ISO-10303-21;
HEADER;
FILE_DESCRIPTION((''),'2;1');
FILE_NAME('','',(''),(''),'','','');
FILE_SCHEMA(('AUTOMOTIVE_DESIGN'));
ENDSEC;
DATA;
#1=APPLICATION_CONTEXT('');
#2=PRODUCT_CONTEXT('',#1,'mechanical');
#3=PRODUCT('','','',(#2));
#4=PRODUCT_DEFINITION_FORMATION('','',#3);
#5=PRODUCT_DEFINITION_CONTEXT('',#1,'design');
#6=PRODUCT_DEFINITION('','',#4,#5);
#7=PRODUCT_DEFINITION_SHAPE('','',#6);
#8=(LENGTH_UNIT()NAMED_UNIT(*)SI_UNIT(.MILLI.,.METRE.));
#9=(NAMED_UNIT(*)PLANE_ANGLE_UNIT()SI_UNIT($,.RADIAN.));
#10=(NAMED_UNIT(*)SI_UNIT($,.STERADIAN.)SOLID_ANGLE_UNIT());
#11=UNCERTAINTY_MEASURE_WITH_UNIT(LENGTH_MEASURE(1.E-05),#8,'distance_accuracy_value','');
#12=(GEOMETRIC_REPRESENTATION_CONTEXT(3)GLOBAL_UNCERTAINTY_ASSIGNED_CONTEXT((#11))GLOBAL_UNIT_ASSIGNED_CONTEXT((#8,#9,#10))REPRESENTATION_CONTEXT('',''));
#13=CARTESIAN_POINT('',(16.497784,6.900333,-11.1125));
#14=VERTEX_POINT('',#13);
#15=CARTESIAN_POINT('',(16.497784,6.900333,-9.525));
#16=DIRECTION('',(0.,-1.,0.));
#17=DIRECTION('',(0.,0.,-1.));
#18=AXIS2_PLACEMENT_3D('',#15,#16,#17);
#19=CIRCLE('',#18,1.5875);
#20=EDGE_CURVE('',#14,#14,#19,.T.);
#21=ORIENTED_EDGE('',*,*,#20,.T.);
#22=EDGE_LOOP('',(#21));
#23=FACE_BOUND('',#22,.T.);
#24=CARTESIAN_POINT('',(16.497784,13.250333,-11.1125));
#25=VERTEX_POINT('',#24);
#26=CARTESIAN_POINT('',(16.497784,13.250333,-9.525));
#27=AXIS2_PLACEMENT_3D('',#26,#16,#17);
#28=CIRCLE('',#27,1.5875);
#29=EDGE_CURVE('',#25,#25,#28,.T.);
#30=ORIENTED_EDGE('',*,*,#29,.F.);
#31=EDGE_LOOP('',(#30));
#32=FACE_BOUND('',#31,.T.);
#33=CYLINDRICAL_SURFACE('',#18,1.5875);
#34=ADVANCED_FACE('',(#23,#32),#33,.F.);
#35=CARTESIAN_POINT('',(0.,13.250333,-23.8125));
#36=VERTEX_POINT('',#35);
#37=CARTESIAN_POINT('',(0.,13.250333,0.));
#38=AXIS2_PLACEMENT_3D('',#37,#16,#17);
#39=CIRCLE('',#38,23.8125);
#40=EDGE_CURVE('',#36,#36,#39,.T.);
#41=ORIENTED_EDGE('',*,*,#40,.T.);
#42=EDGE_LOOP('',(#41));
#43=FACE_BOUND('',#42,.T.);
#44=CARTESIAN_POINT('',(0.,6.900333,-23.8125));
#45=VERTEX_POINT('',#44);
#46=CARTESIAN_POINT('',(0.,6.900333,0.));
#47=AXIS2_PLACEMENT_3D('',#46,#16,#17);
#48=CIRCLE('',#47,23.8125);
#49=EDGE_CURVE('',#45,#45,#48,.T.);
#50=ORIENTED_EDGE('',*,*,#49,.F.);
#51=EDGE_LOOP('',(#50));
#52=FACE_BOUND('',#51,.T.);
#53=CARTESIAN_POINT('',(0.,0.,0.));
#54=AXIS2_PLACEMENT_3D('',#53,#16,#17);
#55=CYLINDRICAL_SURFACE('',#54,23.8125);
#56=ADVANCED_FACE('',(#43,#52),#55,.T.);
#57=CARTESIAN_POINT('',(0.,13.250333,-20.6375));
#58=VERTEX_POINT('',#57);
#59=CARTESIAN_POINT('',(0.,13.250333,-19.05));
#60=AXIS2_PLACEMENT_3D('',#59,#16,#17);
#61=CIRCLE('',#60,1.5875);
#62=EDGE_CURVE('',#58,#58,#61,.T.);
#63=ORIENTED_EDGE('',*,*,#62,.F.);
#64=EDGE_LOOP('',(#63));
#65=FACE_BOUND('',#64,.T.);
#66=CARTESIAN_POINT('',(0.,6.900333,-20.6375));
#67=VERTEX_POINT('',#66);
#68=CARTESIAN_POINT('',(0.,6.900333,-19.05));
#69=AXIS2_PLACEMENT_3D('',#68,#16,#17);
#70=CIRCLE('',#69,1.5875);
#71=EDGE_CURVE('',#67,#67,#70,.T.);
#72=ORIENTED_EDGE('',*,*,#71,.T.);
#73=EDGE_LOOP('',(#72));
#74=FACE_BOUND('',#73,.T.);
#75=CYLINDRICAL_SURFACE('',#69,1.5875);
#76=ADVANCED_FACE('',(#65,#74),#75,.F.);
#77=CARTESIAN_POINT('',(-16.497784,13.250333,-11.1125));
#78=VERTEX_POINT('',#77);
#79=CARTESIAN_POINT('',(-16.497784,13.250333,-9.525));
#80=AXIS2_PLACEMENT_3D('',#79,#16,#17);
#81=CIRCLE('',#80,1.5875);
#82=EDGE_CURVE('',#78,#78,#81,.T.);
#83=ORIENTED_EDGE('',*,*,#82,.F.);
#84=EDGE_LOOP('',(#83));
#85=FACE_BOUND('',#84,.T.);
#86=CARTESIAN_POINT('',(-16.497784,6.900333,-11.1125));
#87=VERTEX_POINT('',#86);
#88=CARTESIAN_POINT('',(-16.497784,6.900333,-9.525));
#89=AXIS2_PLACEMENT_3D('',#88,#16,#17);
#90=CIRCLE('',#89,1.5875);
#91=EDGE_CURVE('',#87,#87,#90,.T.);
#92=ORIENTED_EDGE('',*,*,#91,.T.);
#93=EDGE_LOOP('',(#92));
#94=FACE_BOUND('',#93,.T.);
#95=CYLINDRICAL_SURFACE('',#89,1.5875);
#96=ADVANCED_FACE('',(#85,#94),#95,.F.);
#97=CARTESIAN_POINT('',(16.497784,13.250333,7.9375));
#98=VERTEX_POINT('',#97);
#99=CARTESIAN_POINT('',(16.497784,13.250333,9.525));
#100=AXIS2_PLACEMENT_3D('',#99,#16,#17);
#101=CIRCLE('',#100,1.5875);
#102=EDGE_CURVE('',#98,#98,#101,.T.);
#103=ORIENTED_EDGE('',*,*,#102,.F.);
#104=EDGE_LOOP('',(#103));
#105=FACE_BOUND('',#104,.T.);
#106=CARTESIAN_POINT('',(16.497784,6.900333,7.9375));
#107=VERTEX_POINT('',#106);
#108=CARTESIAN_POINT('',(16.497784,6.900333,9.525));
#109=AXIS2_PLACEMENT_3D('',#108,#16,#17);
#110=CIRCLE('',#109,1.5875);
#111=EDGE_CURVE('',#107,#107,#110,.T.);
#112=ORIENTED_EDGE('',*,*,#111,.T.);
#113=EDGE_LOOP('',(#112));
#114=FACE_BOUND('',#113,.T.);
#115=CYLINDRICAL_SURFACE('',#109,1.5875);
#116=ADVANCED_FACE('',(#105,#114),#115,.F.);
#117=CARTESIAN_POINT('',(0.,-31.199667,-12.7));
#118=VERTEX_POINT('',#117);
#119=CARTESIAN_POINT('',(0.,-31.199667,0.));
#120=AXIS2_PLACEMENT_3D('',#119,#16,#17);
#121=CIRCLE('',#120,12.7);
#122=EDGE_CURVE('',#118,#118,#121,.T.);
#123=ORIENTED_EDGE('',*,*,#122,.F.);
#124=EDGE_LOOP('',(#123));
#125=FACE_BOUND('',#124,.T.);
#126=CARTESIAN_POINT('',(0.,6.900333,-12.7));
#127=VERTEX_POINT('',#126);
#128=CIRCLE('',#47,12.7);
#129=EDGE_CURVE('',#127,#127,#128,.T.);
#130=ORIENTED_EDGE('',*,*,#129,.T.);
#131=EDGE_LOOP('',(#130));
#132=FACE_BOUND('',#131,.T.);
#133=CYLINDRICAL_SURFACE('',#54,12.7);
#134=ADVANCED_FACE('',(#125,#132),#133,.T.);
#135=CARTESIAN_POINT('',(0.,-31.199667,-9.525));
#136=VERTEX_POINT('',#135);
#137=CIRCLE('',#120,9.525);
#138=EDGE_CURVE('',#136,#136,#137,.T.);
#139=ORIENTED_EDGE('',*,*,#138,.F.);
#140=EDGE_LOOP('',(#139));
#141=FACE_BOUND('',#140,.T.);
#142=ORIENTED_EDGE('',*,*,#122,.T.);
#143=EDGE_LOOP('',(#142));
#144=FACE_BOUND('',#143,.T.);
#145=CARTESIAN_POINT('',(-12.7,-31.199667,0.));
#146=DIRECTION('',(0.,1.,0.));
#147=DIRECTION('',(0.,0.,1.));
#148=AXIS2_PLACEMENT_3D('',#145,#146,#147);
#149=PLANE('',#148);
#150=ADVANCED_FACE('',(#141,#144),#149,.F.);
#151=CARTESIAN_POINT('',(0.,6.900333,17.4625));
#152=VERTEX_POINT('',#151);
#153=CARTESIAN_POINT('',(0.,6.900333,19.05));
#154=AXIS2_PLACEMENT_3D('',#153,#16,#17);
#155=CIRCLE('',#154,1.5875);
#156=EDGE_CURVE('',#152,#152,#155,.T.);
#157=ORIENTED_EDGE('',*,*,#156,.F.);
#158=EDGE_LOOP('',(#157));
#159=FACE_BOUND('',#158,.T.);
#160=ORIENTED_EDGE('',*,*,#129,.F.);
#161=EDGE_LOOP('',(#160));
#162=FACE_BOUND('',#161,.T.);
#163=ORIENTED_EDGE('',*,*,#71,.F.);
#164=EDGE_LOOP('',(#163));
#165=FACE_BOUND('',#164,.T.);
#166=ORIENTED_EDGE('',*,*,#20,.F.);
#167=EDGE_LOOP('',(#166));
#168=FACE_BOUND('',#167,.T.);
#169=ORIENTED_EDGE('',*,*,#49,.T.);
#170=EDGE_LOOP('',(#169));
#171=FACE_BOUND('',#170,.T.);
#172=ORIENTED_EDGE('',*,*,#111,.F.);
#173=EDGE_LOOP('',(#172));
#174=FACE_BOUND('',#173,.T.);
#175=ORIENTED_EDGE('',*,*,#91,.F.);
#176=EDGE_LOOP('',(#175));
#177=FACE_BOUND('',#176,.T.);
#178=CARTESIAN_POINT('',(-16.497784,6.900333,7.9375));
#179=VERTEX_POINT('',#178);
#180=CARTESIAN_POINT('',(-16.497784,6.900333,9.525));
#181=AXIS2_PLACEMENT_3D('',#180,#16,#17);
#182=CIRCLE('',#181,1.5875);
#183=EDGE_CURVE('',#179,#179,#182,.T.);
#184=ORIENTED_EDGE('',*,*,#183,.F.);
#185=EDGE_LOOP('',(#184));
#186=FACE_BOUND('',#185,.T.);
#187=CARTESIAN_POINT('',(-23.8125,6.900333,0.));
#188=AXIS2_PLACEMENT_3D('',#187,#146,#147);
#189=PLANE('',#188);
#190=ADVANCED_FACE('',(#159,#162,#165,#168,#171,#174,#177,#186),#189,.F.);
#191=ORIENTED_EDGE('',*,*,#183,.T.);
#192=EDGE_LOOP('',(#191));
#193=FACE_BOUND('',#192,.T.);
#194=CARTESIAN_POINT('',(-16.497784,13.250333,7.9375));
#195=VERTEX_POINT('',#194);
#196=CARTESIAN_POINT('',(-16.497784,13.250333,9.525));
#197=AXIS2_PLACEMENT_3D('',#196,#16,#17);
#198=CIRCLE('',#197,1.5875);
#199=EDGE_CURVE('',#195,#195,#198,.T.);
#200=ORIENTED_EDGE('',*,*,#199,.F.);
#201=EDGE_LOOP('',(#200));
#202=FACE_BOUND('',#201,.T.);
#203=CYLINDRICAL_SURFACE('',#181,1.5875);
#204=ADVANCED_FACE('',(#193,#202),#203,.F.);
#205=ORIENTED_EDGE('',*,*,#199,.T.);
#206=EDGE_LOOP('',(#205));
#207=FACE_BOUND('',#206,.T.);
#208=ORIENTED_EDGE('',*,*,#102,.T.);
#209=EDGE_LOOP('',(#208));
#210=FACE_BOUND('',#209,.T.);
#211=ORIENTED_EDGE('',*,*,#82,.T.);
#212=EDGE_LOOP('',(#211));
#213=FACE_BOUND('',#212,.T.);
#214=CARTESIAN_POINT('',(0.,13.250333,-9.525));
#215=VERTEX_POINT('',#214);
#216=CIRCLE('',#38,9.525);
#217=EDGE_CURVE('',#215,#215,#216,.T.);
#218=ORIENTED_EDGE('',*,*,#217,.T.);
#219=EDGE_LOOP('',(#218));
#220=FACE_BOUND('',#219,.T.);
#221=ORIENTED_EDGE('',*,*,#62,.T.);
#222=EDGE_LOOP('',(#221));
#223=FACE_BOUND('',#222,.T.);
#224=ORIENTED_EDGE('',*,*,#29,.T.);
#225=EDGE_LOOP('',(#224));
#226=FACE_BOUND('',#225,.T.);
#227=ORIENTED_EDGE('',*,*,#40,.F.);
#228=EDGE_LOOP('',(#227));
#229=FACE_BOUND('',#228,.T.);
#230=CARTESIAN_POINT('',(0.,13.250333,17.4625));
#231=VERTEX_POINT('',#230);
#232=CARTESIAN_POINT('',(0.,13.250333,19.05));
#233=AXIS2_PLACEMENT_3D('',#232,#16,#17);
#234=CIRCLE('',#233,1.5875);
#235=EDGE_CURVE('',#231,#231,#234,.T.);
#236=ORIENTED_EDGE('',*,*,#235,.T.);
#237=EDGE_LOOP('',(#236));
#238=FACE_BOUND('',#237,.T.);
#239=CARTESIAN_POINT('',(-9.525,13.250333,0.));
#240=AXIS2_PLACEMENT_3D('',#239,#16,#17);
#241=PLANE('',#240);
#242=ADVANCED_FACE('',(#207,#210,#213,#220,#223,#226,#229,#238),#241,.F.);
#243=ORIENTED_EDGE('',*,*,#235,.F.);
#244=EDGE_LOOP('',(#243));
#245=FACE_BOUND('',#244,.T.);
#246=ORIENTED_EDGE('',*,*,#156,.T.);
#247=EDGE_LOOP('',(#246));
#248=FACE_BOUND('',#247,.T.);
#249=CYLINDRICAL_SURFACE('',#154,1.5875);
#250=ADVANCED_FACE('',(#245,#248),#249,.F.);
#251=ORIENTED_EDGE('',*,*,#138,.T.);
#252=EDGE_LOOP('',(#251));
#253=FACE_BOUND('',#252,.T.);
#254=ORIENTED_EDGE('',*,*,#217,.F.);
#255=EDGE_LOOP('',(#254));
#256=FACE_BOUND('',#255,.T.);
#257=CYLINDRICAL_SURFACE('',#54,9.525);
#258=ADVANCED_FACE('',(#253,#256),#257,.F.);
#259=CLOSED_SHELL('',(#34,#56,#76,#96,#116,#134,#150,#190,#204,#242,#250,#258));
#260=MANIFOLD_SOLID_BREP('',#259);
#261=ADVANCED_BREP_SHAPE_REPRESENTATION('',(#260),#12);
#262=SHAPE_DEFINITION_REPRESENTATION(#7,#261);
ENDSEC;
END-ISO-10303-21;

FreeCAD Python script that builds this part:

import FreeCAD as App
import Part
import Sketcher
from FreeCAD import Vector
Q = App.Units.Quantity


def add_polygon(sketch, points):
    """Adds a closed chain of lines whose ends are joined by coincident constraints."""
    first, n = sketch.GeometryCount, len(points)
    for a, b in zip(points, points[1:] + points[:1]):
        sketch.addGeometry(Part.LineSegment(App.Vector(*a, 0), App.Vector(*b, 0)), False)
    for i in range(n):
        sketch.addConstraint(Sketcher.Constraint("Coincident", first + i, 2, first + (i + 1) % n, 1))

doc = App.newDocument("Part")
body = doc.addObject("PartDesign::Body", "Body")

sketch1 = body.newObject("Sketcher::SketchObject", "Sketch")
sketch1.AttachmentSupport = (doc.getObject("XY_Plane"), [""])
sketch1.MapMode = "FlatFace"
add_polygon(sketch1, [(-9.5, -31.2), (-9.5, 13.3), (-23.8, 13.3), (-23.8, 6.9), (-12.7, 6.9), (-12.7, -31.2)])
sketch1.addConstraint([
    Sketcher.Constraint("Vertical", 0),
    Sketcher.Constraint("Horizontal", 1),
    Sketcher.Constraint("Vertical", 2),
    Sketcher.Constraint("Horizontal", 3),
    Sketcher.Constraint("Vertical", 4),
    Sketcher.Constraint("Horizontal", 5),
    Sketcher.Constraint("DistanceY", 4, 2, 4, 1, Q("1.5 in")),
    Sketcher.Constraint("DistanceY", 0, 1, 0, 2, Q("1.75 in")),
    Sketcher.Constraint("DistanceX", 3, 2, -1, 1, Q("0.5 in")),
    Sketcher.Constraint("DistanceX", 1, 2, 1, 1, Q("0.5625 in")),
    Sketcher.Constraint("DistanceX", 3, 1, 3, 2, Q("0.4375 in")),
    Sketcher.Constraint("DistanceY", -1, 1, 0, 2, Q("13.250333 mm")),
])
revolution = body.newObject("PartDesign::Revolution", "Revolution")
revolution.Profile = sketch1
revolution.ReferenceAxis = (sketch1, ["V_Axis"])
revolution.Angle = 360

sketch2 = body.newObject("Sketcher::SketchObject", "Sketch001")
sketch2.AttachmentSupport = (doc.getObject("XZ_Plane"), [""])
sketch2.MapMode = "FlatFace"
sketch2.AttachmentOffset = App.Placement(Vector(0, 0, -6.900333), App.Rotation())
sketch2.addGeometry([
    Part.Circle(Vector(0, -19.1, 0), Vector(0, 0, 1), 1.6),
    Part.Circle(Vector(-16.5, -9.5, 0), Vector(0, 0, 1), 1.6),
    Part.Circle(Vector(-16.5, 9.5, 0), Vector(0, 0, 1), 1.6),
    Part.Circle(Vector(0, 19.1, 0), Vector(0, 0, 1), 1.6),
    Part.Circle(Vector(16.5, 9.5, 0), Vector(0, 0, 1), 1.6),
    Part.Circle(Vector(16.5, -9.5, 0), Vector(0, 0, 1), 1.6),
    Part.Circle(Vector(0, 0, 0), Vector(0, 0, 1), 1.6),
], False)
sketch2.addConstraint([
    Sketcher.Constraint("Coincident", 6, 3, -1, 1),
    Sketcher.Constraint("Equal", 0, 1),
    Sketcher.Constraint("Equal", 1, 2),
    Sketcher.Constraint("Equal", 2, 3),
    Sketcher.Constraint("Equal", 3, 4),
    Sketcher.Constraint("Equal", 4, 5),
    Sketcher.Constraint("Equal", 5, 6),
    Sketcher.Constraint("Symmetric", 0, 3, 3, 3, -1, 1),
    Sketcher.Constraint("Symmetric", 1, 3, 4, 3, -1, 1),
    Sketcher.Constraint("Symmetric", 2, 3, 5, 3, -1, 1),
    Sketcher.Constraint("Symmetric", 2, 3, 4, 3, -2),
    Sketcher.Constraint("PointOnObject", 0, 3, -2),
    Sketcher.Constraint("Diameter", 0, Q("0.125 in")),
    Sketcher.Constraint("DistanceY", 0, 3, 3, 3, Q("1.5 in")),
    Sketcher.Constraint("DistanceY", 1, 3, 2, 3, Q("0.75 in")),
    Sketcher.Constraint("DistanceX", 1, 3, -1, 1, Q("16.497784 mm")),
])
doc.recompute()
hole = body.newObject("PartDesign::Hole", "Hole")
hole.Profile = sketch2
hole.ThreadType = "None"
hole.Diameter = Q("0.125 in")
hole.DepthType = "ThroughAll"

doc.recompute()
